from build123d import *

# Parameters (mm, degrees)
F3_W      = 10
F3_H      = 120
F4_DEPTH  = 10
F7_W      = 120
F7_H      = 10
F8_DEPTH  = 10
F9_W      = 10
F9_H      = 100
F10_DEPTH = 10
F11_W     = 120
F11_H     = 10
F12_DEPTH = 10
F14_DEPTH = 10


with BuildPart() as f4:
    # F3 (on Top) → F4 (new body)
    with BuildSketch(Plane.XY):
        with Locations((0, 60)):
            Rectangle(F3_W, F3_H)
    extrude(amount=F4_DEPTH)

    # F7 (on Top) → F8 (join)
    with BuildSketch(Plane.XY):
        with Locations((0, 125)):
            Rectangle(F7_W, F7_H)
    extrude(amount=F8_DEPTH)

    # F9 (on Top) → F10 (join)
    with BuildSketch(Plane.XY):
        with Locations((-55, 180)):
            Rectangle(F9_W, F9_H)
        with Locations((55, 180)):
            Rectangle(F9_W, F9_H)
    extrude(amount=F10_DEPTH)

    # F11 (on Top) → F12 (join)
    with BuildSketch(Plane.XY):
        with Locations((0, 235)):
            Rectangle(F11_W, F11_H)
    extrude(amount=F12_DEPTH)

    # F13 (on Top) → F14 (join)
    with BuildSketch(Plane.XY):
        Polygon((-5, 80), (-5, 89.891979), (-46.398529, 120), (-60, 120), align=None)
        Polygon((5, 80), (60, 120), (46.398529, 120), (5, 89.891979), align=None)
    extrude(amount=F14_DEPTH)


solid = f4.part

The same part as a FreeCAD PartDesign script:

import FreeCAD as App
import Part
import Sketcher

V = App.Vector


def add_polygon(sketch, points):
    """Adds a closed chain of lines whose ends are joined by coincident constraints."""
    first, n = sketch.GeometryCount, len(points)
    for a, b in zip(points, points[1:] + points[:1]):
        sketch.addGeometry(Part.LineSegment(App.Vector(*a, 0), App.Vector(*b, 0)), False)
    for i in range(n):
        sketch.addConstraint(Sketcher.Constraint("Coincident", first + i, 2, first + (i + 1) % n, 1))

doc = App.newDocument("Part")
params = doc.addObject("Spreadsheet::Sheet", "Params")
for row, (alias, value) in enumerate([
    ("sketch1_width", "10 mm"),
    ("sketch1_height", "120 mm"),
    ("pad1_length", "10 mm"),
    ("sketch2_width", "120 mm"),
    ("sketch2_height", "10 mm"),
    ("pad2_length", "10 mm"),
    ("sketch3_width", "10 mm"),
    ("sketch3_height", "100 mm"),
    ("pad3_length", "10 mm"),
    ("sketch4_width", "120 mm"),
    ("sketch4_height", "10 mm"),
    ("pad4_length", "10 mm"),
    ("pad5_length", "10 mm"),
], start=1):
    params.set(f"A{row}", alias)
    params.set(f"B{row}", "=" + value)
    params.setAlias(f"B{row}", alias)

body = doc.addObject("PartDesign::Body", "Body")

sketch1 = body.newObject("Sketcher::SketchObject", "Sketch")
sketch1.AttachmentSupport = (doc.getObject("XY_Plane"), [""])
sketch1.MapMode = "FlatFace"
add_polygon(sketch1, [(-5, 120), (-5, 0), (5, 0), (5, 120)])
sketch1.addConstraint([
    Sketcher.Constraint("Vertical", 0),
    Sketcher.Constraint("Horizontal", 1),
    Sketcher.Constraint("Vertical", 2),
    Sketcher.Constraint("Horizontal", 3),
    Sketcher.Constraint("Symmetric", 0, 2, 1, 2, -1, 1),
    Sketcher.Constraint("DistanceX", 1, 1, 1, 2, 10.0),
    Sketcher.Constraint("DistanceY", 0, 2, 0, 1, 120.0),
])
sketch1.setExpression("Constraints[9]", "Params.sketch1_width")
sketch1.setExpression("Constraints[10]", "Params.sketch1_height")
pad1 = body.newObject("PartDesign::Pad", "Pad")
pad1.Profile = sketch1
pad1.setExpression("Length", "Params.pad1_length")

sketch2 = body.newObject("Sketcher::SketchObject", "Sketch001")
sketch2.AttachmentSupport = (doc.getObject("XY_Plane"), [""])
sketch2.MapMode = "FlatFace"
add_polygon(sketch2, [(-60, 130), (-60, 120), (60, 120), (60, 130)])
sketch2.addConstraint([
    Sketcher.Constraint("Vertical", 0),
    Sketcher.Constraint("Horizontal", 1),
    Sketcher.Constraint("Vertical", 2),
    Sketcher.Constraint("Horizontal", 3),
    Sketcher.Constraint("DistanceX", 1, 1, 1, 2, 120.0),
    Sketcher.Constraint("DistanceY", 0, 2, 0, 1, 10.0),
    Sketcher.Constraint("DistanceX", 0, 2, -1, 1, 60.0),
    Sketcher.Constraint("DistanceY", -1, 1, 0, 2, 120.0),
])
sketch2.setExpression("Constraints[8]", "Params.sketch2_width")
sketch2.setExpression("Constraints[9]", "Params.sketch2_height")
pad2 = body.newObject("PartDesign::Pad", "Pad001")
pad2.Profile = sketch2
pad2.setExpression("Length", "Params.pad2_length")

sketch3 = body.newObject("Sketcher::SketchObject", "Sketch002")
sketch3.AttachmentSupport = (doc.getObject("XY_Plane"), [""])
sketch3.MapMode = "FlatFace"
add_polygon(sketch3, [(-60, 230), (-60, 130), (-50, 130), (-50, 230)])
add_polygon(sketch3, [(50, 230), (50, 130), (60, 130), (60, 230)])
sketch3.addConstraint([
    Sketcher.Constraint("Vertical", 0),
    Sketcher.Constraint("Horizontal", 1),
    Sketcher.Constraint("Vertical", 2),
    Sketcher.Constraint("Horizontal", 3),
    Sketcher.Constraint("Vertical", 4),
    Sketcher.Constraint("Horizontal", 5),
    Sketcher.Constraint("Vertical", 6),
    Sketcher.Constraint("Horizontal", 7),
    Sketcher.Constraint("Symmetric", 1, 2, 4, 2, -2),
    Sketcher.Constraint("Symmetric", 3, 2, 6, 2, -2),
    Sketcher.Constraint("DistanceX", 1, 1, 1, 2, 10.0),
    Sketcher.Constraint("DistanceY", 0, 2, 0, 1, 100.0),
    Sketcher.Constraint("DistanceX", 0, 2, -1, 1, 60.0),
    Sketcher.Constraint("DistanceY", -1, 1, 0, 2, 130.0),
])
sketch3.setExpression("Constraints[18]", "Params.sketch3_width")
sketch3.setExpression("Constraints[19]", "Params.sketch3_height")
pad3 = body.newObject("PartDesign::Pad", "Pad002")
pad3.Profile = sketch3
pad3.setExpression("Length", "Params.pad3_length")

sketch4 = body.newObject("Sketcher::SketchObject", "Sketch003")
sketch4.AttachmentSupport = (doc.getObject("XY_Plane"), [""])
sketch4.MapMode = "FlatFace"
add_polygon(sketch4, [(-60, 240), (-60, 230), (60, 230), (60, 240)])
sketch4.addConstraint([
    Sketcher.Constraint("Vertical", 0),
    Sketcher.Constraint("Horizontal", 1),
    Sketcher.Constraint("Vertical", 2),
    Sketcher.Constraint("Horizontal", 3),
    Sketcher.Constraint("DistanceX", 1, 1, 1, 2, 120.0),
    Sketcher.Constraint("DistanceY", 0, 2, 0, 1, 10.0),
    Sketcher.Constraint("DistanceX", 0, 2, -1, 1, 60.0),
    Sketcher.Constraint("DistanceY", -1, 1, 0, 2, 230.0),
])
sketch4.setExpression("Constraints[8]", "Params.sketch4_width")
sketch4.setExpression("Constraints[9]", "Params.sketch4_height")
pad4 = body.newObject("PartDesign::Pad", "Pad003")
pad4.Profile = sketch4
pad4.setExpression("Length", "Params.pad4_length")

sketch5 = body.newObject("Sketcher::SketchObject", "Sketch004")
sketch5.AttachmentSupport = (doc.getObject("XY_Plane"), [""])
sketch5.MapMode = "FlatFace"
add_polygon(sketch5, [(-5, 80), (-5, 90), (-46, 120), (-60, 120)])
add_polygon(sketch5, [(5, 80), (60, 120), (46, 120), (5, 90)])
sketch5.addConstraint([
    Sketcher.Constraint("Vertical", 0),
    Sketcher.Constraint("Horizontal", 2),
    Sketcher.Constraint("Horizontal", 5),
    Sketcher.Constraint("Vertical", 7),
    Sketcher.Constraint("Symmetric", 2, 2, 4, 2, -2),
    Sketcher.Constraint("Symmetric", 0, 2, 6, 2, -2),
    Sketcher.Constraint("Parallel", 1, 3),
    Sketcher.Constraint("Parallel", 4, 6),
    Sketcher.Constraint("Horizontal", 3, 2, 7, 2),
    Sketcher.Constraint("DistanceX", 0, 2, -1, 1, 5.0),
    Sketcher.Constraint("DistanceY", -1, 1, 1, 2, 120.0),
    Sketcher.Constraint("DistanceX", 2, 2, -1, 1, 60.0),
    Sketcher.Constraint("DistanceY", -1, 1, 3, 2, 80.0),
    Sketcher.Constraint("DistanceX", 2, 2, 2, 1, 13.601471),
])
pad5 = body.newObject("PartDesign::Pad", "Pad004")
pad5.Profile = sketch5
pad5.setExpression("Length", "Params.pad5_length")

doc.recompute()
